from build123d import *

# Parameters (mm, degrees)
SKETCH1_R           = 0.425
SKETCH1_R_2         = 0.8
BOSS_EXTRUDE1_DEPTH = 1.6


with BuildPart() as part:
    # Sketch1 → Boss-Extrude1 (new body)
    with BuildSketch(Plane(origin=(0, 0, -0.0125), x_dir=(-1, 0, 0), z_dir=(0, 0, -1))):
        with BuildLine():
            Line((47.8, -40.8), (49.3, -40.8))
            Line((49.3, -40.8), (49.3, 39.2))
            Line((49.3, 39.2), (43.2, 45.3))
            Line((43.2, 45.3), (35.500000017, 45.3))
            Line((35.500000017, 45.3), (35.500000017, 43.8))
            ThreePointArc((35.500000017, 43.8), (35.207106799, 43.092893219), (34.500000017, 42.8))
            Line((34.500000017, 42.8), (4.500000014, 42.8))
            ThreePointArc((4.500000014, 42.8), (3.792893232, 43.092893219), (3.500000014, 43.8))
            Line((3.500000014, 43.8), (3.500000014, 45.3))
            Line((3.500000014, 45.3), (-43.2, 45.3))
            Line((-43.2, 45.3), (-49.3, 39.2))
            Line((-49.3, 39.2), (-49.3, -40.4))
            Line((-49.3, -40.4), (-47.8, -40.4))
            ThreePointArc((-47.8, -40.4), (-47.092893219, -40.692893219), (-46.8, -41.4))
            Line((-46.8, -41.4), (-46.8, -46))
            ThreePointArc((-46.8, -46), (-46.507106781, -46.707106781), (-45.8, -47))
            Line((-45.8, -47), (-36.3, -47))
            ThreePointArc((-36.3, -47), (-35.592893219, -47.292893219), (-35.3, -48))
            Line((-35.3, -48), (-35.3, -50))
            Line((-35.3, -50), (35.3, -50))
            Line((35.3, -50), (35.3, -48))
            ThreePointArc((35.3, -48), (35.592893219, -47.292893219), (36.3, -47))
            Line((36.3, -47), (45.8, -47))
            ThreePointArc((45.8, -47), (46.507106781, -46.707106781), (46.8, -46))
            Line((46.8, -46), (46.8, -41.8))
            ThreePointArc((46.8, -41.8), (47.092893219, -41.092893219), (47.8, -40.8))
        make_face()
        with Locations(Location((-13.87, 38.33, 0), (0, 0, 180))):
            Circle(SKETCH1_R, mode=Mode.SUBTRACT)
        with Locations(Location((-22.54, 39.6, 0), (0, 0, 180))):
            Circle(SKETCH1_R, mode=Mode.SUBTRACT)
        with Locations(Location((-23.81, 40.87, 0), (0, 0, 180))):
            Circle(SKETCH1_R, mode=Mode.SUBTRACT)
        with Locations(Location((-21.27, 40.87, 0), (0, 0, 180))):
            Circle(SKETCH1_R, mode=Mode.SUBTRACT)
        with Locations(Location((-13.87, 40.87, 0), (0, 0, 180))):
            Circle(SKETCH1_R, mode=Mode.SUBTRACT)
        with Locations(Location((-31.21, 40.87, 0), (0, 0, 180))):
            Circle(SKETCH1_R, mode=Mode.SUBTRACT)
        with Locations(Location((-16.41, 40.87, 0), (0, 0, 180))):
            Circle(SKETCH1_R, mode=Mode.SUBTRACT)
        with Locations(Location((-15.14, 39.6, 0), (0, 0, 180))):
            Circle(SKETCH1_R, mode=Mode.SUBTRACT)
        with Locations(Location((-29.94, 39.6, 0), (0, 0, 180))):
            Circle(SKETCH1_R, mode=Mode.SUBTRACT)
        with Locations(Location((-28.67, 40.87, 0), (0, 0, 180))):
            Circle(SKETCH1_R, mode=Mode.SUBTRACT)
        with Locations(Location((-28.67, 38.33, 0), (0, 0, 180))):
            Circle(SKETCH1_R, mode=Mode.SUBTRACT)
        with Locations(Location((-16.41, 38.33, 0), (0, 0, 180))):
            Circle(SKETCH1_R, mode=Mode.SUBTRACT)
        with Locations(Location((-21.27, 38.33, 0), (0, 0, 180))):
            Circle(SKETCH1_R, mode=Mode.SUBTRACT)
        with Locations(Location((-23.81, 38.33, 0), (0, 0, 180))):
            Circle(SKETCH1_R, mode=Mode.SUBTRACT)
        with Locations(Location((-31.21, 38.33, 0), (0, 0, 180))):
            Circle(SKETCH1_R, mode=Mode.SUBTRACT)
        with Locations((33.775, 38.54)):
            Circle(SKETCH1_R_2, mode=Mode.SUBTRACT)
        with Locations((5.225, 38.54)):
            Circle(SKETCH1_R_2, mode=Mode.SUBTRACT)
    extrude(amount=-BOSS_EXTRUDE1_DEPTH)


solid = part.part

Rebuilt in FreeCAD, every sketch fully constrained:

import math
import FreeCAD as App
import Part
import Sketcher
from FreeCAD import Vector
Q = App.Units.Quantity

doc = App.newDocument("Part")
body = doc.addObject("PartDesign::Body", "Body")

# Sketch on XY plane
sketch1 = body.newObject("Sketcher::SketchObject", "Sketch")
sketch1.AttachmentSupport = (doc.getObject("XY_Plane"), [""])
sketch1.MapMode = "FlatFace"
sketch1.AttachmentOffset = App.Placement(Vector(0, 0, -0.0125), App.Rotation())
sketch1.addGeometry(Part.LineSegment(Vector(-47.8, -40.8, 0), Vector(-49.3, -40.8, 0)), False)
sketch1.addGeometry(Part.LineSegment(Vector(-49.3, -40.8, 0), Vector(-49.3, 39.2, 0)), False)
sketch1.addGeometry(Part.LineSegment(Vector(-49.3, 39.2, 0), Vector(-43.2, 45.3, 0)), False)
sketch1.addGeometry(Part.LineSegment(Vector(-43.2, 45.3, 0), Vector(-35.5, 45.3, 0)), False)
sketch1.addGeometry(Part.LineSegment(Vector(-35.5, 45.3, 0), Vector(-35.5, 43.8, 0)), False)
sketch1.addGeometry(Part.ArcOfCircle(Part.Circle(Vector(-34.5, 43.8, 0), Vector(0, 0, 1), 1), math.radians(180), math.radians(270)), False)
sketch1.addGeometry(Part.LineSegment(Vector(-34.5, 42.8, 0), Vector(-4.5, 42.8, 0)), False)
sketch1.addGeometry(Part.ArcOfCircle(Part.Circle(Vector(-4.5, 43.8, 0), Vector(0, 0, 1), 1), math.radians(-90), math.radians(0)), False)
sketch1.addGeometry(Part.LineSegment(Vector(-3.5, 43.8, 0), Vector(-3.5, 45.3, 0)), False)
sketch1.addGeometry(Part.LineSegment(Vector(-3.5, 45.3, 0), Vector(43.2, 45.3, 0)), False)
sketch1.addGeometry(Part.LineSegment(Vector(43.2, 45.3, 0), Vector(49.3, 39.2, 0)), False)
sketch1.addGeometry(Part.LineSegment(Vector(49.3, 39.2, 0), Vector(49.3, -40.4, 0)), False)
sketch1.addGeometry(Part.LineSegment(Vector(49.3, -40.4, 0), Vector(47.8, -40.4, 0)), False)
sketch1.addGeometry(Part.ArcOfCircle(Part.Circle(Vector(47.8, -41.4, 0), Vector(0, 0, 1), 1), math.radians(90), math.radians(180)), False)
sketch1.addGeometry(Part.LineSegment(Vector(46.8, -41.4, 0), Vector(46.8, -46, 0)), False)
sketch1.addGeometry(Part.ArcOfCircle(Part.Circle(Vector(45.8, -46, 0), Vector(0, 0, 1), 1), math.radians(-90), math.radians(0)), False)
sketch1.addGeometry(Part.LineSegment(Vector(45.8, -47, 0), Vector(36.3, -47, 0)), False)
sketch1.addGeometry(Part.ArcOfCircle(Part.Circle(Vector(36.3, -48, 0), Vector(0, 0, 1), 1), math.radians(90), math.radians(180)), False)
sketch1.addGeometry(Part.LineSegment(Vector(35.3, -48, 0), Vector(35.3, -50, 0)), False)
sketch1.addGeometry(Part.LineSegment(Vector(35.3, -50, 0), Vector(-35.3, -50, 0)), False)
sketch1.addGeometry(Part.LineSegment(Vector(-35.3, -50, 0), Vector(-35.3, -48, 0)), False)
sketch1.addGeometry(Part.ArcOfCircle(Part.Circle(Vector(-36.3, -48, 0), Vector(0, 0, 1), 1), math.radians(0), math.radians(90)), False)
sketch1.addGeometry(Part.LineSegment(Vector(-36.3, -47, 0), Vector(-45.8, -47, 0)), False)
sketch1.addGeometry(Part.ArcOfCircle(Part.Circle(Vector(-45.8, -46, 0), Vector(0, 0, 1), 1), math.radians(-180), math.radians(-90)), False)
sketch1.addGeometry(Part.LineSegment(Vector(-46.8, -46, 0), Vector(-46.8, -41.8, 0)), False)
sketch1.addGeometry(Part.ArcOfCircle(Part.Circle(Vector(-47.8, -41.8, 0), Vector(0, 0, 1), 1), math.radians(0), math.radians(90)), False)
sketch1.addGeometry(Part.Circle(Vector(31.21, 38.33, 0), Vector(0, 0, 1), 0.42), False)
sketch1.addGeometry(Part.Circle(Vector(28.67, 38.33, 0), Vector(0, 0, 1), 0.42), False)
sketch1.addGeometry(Part.Circle(Vector(23.81, 38.33, 0), Vector(0, 0, 1), 0.42), False)
sketch1.addGeometry(Part.Circle(Vector(21.27, 38.33, 0), Vector(0, 0, 1), 0.42), False)
sketch1.addGeometry(Part.Circle(Vector(16.41, 38.33, 0), Vector(0, 0, 1), 0.42), False)
sketch1.addGeometry(Part.Circle(Vector(13.87, 38.33, 0), Vector(0, 0, 1), 0.42), False)
sketch1.addGeometry(Part.Circle(Vector(-5.22, 38.54, 0), Vector(0, 0, 1), 0.8), False)
sketch1.addGeometry(Part.Circle(Vector(-33.77, 38.54, 0), Vector(0, 0, 1), 0.8), False)
sketch1.addGeometry(Part.Circle(Vector(29.94, 39.6, 0), Vector(0, 0, 1), 0.42), False)
sketch1.addGeometry(Part.Circle(Vector(22.54, 39.6, 0), Vector(0, 0, 1), 0.42), False)
sketch1.addGeometry(Part.Circle(Vector(15.14, 39.6, 0), Vector(0, 0, 1), 0.42), False)
sketch1.addGeometry(Part.Circle(Vector(31.21, 40.87, 0), Vector(0, 0, 1), 0.42), False)
sketch1.addGeometry(Part.Circle(Vector(28.67, 40.87, 0), Vector(0, 0, 1), 0.42), False)
sketch1.addGeometry(Part.Circle(Vector(23.81, 40.87, 0), Vector(0, 0, 1), 0.42), False)
sketch1.addGeometry(Part.Circle(Vector(21.27, 40.87, 0), Vector(0, 0, 1), 0.42), False)
sketch1.addGeometry(Part.Circle(Vector(16.41, 40.87, 0), Vector(0, 0, 1), 0.42), False)
sketch1.addGeometry(Part.Circle(Vector(13.87, 40.87, 0), Vector(0, 0, 1), 0.42), False)
sketch1.addConstraint(Sketcher.Constraint("Coincident", 0, 2, 1, 1))
sketch1.addConstraint(Sketcher.Constraint("Coincident", 1, 2, 2, 1))
sketch1.addConstraint(Sketcher.Constraint("Coincident", 2, 2, 3, 1))
sketch1.addConstraint(Sketcher.Constraint("Coincident", 3, 2, 4, 1))
sketch1.addConstraint(Sketcher.Constraint("Tangent", 4, 2, 5, 1))
sketch1.addConstraint(Sketcher.Constraint("Tangent", 5, 2, 6, 1))
sketch1.addConstraint(Sketcher.Constraint("Tangent", 6, 2, 7, 1))
sketch1.addConstraint(Sketcher.Constraint("Tangent", 7, 2, 8, 1))
sketch1.addConstraint(Sketcher.Constraint("Coincident", 8, 2, 9, 1))
sketch1.addConstraint(Sketcher.Constraint("Coincident", 9, 2, 10, 1))
sketch1.addConstraint(Sketcher.Constraint("Coincident", 10, 2, 11, 1))
sketch1.addConstraint(Sketcher.Constraint("Coincident", 11, 2, 12, 1))
sketch1.addConstraint(Sketcher.Constraint("Tangent", 12, 2, 13, 1))
sketch1.addConstraint(Sketcher.Constraint("Tangent", 13, 2, 14, 1))
sketch1.addConstraint(Sketcher.Constraint("Tangent", 14, 2, 15, 2))
sketch1.addConstraint(Sketcher.Constraint("Tangent", 15, 1, 16, 1))
sketch1.addConstraint(Sketcher.Constraint("Tangent", 16, 2, 17, 1))
sketch1.addConstraint(Sketcher.Constraint("Tangent", 17, 2, 18, 1))
sketch1.addConstraint(Sketcher.Constraint("Coincident", 18, 2, 19, 1))
sketch1.addConstraint(Sketcher.Constraint("Coincident", 19, 2, 20, 1))
sketch1.addConstraint(Sketcher.Constraint("Tangent", 20, 2, 21, 1))
sketch1.addConstraint(Sketcher.Constraint("Tangent", 21, 2, 22, 1))
sketch1.addConstraint(Sketcher.Constraint("Tangent", 22, 2, 23, 2))
sketch1.addConstraint(Sketcher.Constraint("Tangent", 23, 1, 24, 1))
sketch1.addConstraint(Sketcher.Constraint("Tangent", 24, 2, 25, 1))
sketch1.addConstraint(Sketcher.Constraint("Tangent", 25, 2, 0, 1))
sketch1.addConstraint(Sketcher.Constraint("Horizontal", 0))
sketch1.addConstraint(Sketcher.Constraint("Vertical", 1))
sketch1.addConstraint(Sketcher.Constraint("Horizontal", 3))
sketch1.addConstraint(Sketcher.Constraint("Vertical", 4))
sketch1.addConstraint(Sketcher.Constraint("Horizontal", 6))
sketch1.addConstraint(Sketcher.Constraint("Vertical", 8))
sketch1.addConstraint(Sketcher.Constraint("Horizontal", 9))
sketch1.addConstraint(Sketcher.Constraint("Vertical", 11))
sketch1.addConstraint(Sketcher.Constraint("Horizontal", 12))
sketch1.addConstraint(Sketcher.Constraint("Vertical", 14))
sketch1.addConstraint(Sketcher.Constraint("Horizontal", 16))
sketch1.addConstraint(Sketcher.Constraint("Vertical", 18))
sketch1.addConstraint(Sketcher.Constraint("Horizontal", 19))
sketch1.addConstraint(Sketcher.Constraint("Vertical", 20))
sketch1.addConstraint(Sketcher.Constraint("Horizontal", 22))
sketch1.addConstraint(Sketcher.Constraint("Vertical", 24))
sketch1.addConstraint(Sketcher.Constraint("Equal", 5, 7))
sketch1.addConstraint(Sketcher.Constraint("Equal", 7, 13))
sketch1.addConstraint(Sketcher.Constraint("Equal", 13, 15))
sketch1.addConstraint(Sketcher.Constraint("Equal", 15, 17))
sketch1.addConstraint(Sketcher.Constraint("Equal", 17, 21))
sketch1.addConstraint(Sketcher.Constraint("Equal", 21, 23))
sketch1.addConstraint(Sketcher.Constraint("Equal", 23, 25))
sketch1.addConstraint(Sketcher.Constraint("Equal", 26, 27))
sketch1.addConstraint(Sketcher.Constraint("Equal", 27, 28))
sketch1.addConstraint(Sketcher.Constraint("Equal", 28, 29))
sketch1.addConstraint(Sketcher.Constraint("Equal", 29, 30))
sketch1.addConstraint(Sketcher.Constraint("Equal", 30, 31))
sketch1.addConstraint(Sketcher.Constraint("Equal", 32, 33))
sketch1.addConstraint(Sketcher.Constraint("Equal", 31, 34))
sketch1.addConstraint(Sketcher.Constraint("Equal", 34, 35))
sketch1.addConstraint(Sketcher.Constraint("Equal", 35, 36))
sketch1.addConstraint(Sketcher.Constraint("Equal", 36, 37))
sketch1.addConstraint(Sketcher.Constraint("Equal", 37, 38))
sketch1.addConstraint(Sketcher.Constraint("Equal", 38, 39))
sketch1.addConstraint(Sketcher.Constraint("Equal", 39, 40))
sketch1.addConstraint(Sketcher.Constraint("Equal", 40, 41))
sketch1.addConstraint(Sketcher.Constraint("Equal", 41, 42))
sketch1.addConstraint(Sketcher.Constraint("Symmetric", 17, 3, 21, 3, -2))
sketch1.addConstraint(Sketcher.Constraint("Symmetric", 2, 2, 9, 2, -2))
sketch1.addConstraint(Sketcher.Constraint("Symmetric", 1, 2, 10, 2, -2))
sketch1.addConstraint(Sketcher.Constraint("Perpendicular", 2, 10))
sketch1.addConstraint(Sketcher.Constraint("Horizontal", 26, 3, 27, 3))
sketch1.addConstraint(Sketcher.Constraint("Horizontal", 27, 3, 28, 3))
sketch1.addConstraint(Sketcher.Constraint("Horizontal", 28, 3, 29, 3))
sketch1.addConstraint(Sketcher.Constraint("Horizontal", 29, 3, 30, 3))
sketch1.addConstraint(Sketcher.Constraint("Horizontal", 30, 3, 31, 3))
sketch1.addConstraint(Sketcher.Constraint("Horizontal", 32, 3, 33, 3))
sketch1.addConstraint(Sketcher.Constraint("Horizontal", 34, 3, 35, 3))
sketch1.addConstraint(Sketcher.Constraint("Horizontal", 35, 3, 36, 3))
sketch1.addConstraint(Sketcher.Constraint("Horizontal", 37, 3, 38, 3))
sketch1.addConstraint(Sketcher.Constraint("Horizontal", 38, 3, 39, 3))
sketch1.addConstraint(Sketcher.Constraint("Horizontal", 39, 3, 40, 3))
sketch1.addConstraint(Sketcher.Constraint("Horizontal", 40, 3, 41, 3))
sketch1.addConstraint(Sketcher.Constraint("Horizontal", 41, 3, 42, 3))
sketch1.addConstraint(Sketcher.Constraint("Vertical", 26, 3, 37, 3))
sketch1.addConstraint(Sketcher.Constraint("Vertical", 27, 3, 38, 3))
sketch1.addConstraint(Sketcher.Constraint("Vertical", 28, 3, 39, 3))
sketch1.addConstraint(Sketcher.Constraint("Vertical", 29, 3, 40, 3))
sketch1.addConstraint(Sketcher.Constraint("Vertical", 30, 3, 41, 3))
sketch1.addConstraint(Sketcher.Constraint("Vertical", 31, 3, 42, 3))
sketch1.addConstraint(Sketcher.Constraint("Equal", 0, 12))
sketch1.addConstraint(Sketcher.Constraint("Equal", 12, 4))
sketch1.addConstraint(Sketcher.Constraint("Radius", 5, Q("1 mm")))
sketch1.addConstraint(Sketcher.Constraint("Diameter", 32, Q("1.6 mm")))
sketch1.addConstraint(Sketcher.Constraint("Diameter", 26, Q("0.85 mm")))
sketch1.addConstraint(Sketcher.Constraint("DistanceX", 6, 1, 6, 2, Q("30 mm")))
sketch1.addConstraint(Sketcher.Constraint("DistanceY", 1, 1, 1, 2, Q("80 mm")))
sketch1.addConstraint(Sketcher.Constraint("DistanceY", 18, 2, 18, 1, Q("2 mm")))
sketch1.addConstraint(Sketcher.Constraint("DistanceX", 0, 2, 0, 1, Q("1.5 mm")))
sketch1.addConstraint(Sketcher.Constraint("DistanceX", 3, 1, 3, 2, Q("7.7 mm")))
sketch1.addConstraint(Sketcher.Constraint("DistanceX", 9, 1, 9, 2, Q("46.7 mm")))
sketch1.addConstraint(Sketcher.Constraint("DistanceX", 16, 2, 16, 1, Q("9.5 mm")))
sketch1.addConstraint(Sketcher.Constraint("DistanceX", 19, 2, 19, 1, Q("70.6 mm")))
sketch1.addConstraint(Sketcher.Constraint("DistanceY", 11, 2, 11, 1, Q("79.6 mm")))
sketch1.addConstraint(Sketcher.Constraint("DistanceY", 14, 2, 14, 1, Q("4.6 mm")))
sketch1.addConstraint(Sketcher.Constraint("DistanceY", 15, 3, -1, 1, Q("46 mm")))
sketch1.addConstraint(Sketcher.Constraint("DistanceY", -1, 1, 34, 3, Q("39.6 mm")))
sketch1.addConstraint(Sketcher.Constraint("DistanceX", 28, 3, 26, 3, Q("7.4 mm")))
sketch1.addConstraint(Sketcher.Constraint("DistanceX", 29, 3, 27, 3, Q("7.4 mm")))
sketch1.addConstraint(Sketcher.Constraint("DistanceX", 30, 3, 28, 3, Q("7.4 mm")))
sketch1.addConstraint(Sketcher.Constraint("DistanceX", 31, 3, 29, 3, Q("7.4 mm")))
sketch1.addConstraint(Sketcher.Constraint("DistanceX", 35, 3, 34, 3, Q("7.4 mm")))
sketch1.addConstraint(Sketcher.Constraint("DistanceX", 36, 3, 35, 3, Q("7.4 mm")))
sketch1.addConstraint(Sketcher.Constraint("DistanceX", -1, 1, 26, 3, Q("31.21 mm")))
sketch1.addConstraint(Sketcher.Constraint("DistanceY", -1, 1, 26, 3, Q("38.33 mm")))
sketch1.addConstraint(Sketcher.Constraint("DistanceX", -1, 1, 27, 3, Q("28.67 mm")))
sketch1.addConstraint(Sketcher.Constraint("DistanceY", -1, 1, 32, 3, Q("38.54 mm")))
sketch1.addConstraint(Sketcher.Constraint("DistanceX", -1, 1, 34, 3, Q("29.94 mm")))
sketch1.addConstraint(Sketcher.Constraint("DistanceY", -1, 1, 37, 3, Q("40.87 mm")))
sketch1.addConstraint(Sketcher.Constraint("DistanceX", 33, 3, 32, 3, Q("28.55 mm")))
sketch1.addConstraint(Sketcher.Constraint("DistanceX", 32, 3, -1, 1, Q("5.225 mm")))
pad1 = body.newObject("PartDesign::Pad", "Pad")
pad1.Profile = sketch1
pad1.Length = 1.6

doc.recompute()
